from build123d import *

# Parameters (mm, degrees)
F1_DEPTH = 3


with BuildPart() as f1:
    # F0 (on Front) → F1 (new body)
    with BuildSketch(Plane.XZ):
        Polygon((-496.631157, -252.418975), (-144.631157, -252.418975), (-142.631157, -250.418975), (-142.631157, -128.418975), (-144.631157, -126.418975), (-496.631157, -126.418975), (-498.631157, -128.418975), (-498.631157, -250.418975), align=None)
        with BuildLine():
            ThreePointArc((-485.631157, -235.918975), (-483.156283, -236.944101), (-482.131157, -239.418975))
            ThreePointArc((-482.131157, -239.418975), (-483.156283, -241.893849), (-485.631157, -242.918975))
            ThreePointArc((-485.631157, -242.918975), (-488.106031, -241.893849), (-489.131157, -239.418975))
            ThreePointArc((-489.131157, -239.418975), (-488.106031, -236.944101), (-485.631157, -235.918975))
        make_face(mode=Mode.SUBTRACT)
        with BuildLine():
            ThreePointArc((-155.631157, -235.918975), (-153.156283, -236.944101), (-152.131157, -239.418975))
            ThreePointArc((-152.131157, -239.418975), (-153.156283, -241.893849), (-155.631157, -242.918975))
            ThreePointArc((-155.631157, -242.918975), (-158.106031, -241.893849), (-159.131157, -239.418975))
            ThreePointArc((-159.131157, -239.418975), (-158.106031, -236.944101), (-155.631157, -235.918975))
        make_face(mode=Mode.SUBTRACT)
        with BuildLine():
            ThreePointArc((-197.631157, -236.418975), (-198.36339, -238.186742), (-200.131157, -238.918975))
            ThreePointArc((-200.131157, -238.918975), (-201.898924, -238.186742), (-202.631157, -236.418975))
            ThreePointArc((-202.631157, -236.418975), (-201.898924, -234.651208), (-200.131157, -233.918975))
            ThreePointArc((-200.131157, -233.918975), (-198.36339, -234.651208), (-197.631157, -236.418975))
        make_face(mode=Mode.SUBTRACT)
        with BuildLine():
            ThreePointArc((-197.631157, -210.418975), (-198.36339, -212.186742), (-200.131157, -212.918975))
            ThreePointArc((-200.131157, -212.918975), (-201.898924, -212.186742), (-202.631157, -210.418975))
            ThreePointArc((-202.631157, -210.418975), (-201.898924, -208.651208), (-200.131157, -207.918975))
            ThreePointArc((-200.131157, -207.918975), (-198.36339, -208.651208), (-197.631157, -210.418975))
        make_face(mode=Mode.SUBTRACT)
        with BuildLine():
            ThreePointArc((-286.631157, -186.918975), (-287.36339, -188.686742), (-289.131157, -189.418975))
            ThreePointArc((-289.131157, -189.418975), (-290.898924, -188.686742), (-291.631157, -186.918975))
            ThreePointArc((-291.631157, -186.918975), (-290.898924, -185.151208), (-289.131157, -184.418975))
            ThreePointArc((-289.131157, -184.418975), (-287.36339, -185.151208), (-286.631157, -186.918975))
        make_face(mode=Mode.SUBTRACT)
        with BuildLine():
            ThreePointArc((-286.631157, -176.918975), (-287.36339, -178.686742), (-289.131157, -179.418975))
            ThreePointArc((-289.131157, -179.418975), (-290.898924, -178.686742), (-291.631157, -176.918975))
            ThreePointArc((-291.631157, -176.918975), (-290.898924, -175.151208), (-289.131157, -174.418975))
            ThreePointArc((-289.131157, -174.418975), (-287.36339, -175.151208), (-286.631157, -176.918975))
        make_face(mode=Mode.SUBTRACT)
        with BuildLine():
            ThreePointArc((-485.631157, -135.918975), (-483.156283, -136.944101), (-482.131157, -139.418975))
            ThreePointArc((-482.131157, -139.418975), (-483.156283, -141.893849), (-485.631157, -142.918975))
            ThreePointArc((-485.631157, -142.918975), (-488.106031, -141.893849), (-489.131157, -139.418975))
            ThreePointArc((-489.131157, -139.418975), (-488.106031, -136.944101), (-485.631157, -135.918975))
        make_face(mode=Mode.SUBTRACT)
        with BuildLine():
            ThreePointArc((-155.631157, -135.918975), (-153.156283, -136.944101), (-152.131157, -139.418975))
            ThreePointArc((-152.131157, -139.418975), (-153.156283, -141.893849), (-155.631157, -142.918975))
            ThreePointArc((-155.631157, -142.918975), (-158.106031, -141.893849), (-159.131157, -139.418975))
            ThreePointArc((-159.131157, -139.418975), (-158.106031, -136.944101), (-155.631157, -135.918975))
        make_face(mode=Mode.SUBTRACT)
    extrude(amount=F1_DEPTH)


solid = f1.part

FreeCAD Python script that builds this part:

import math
import FreeCAD as App
import Part
import Sketcher
from FreeCAD import Vector


def add_polygon(sketch, points):
    """Adds a closed chain of lines whose ends are joined by coincident constraints."""
    first, n = sketch.GeometryCount, len(points)
    for a, b in zip(points, points[1:] + points[:1]):
        sketch.addGeometry(Part.LineSegment(App.Vector(*a, 0), App.Vector(*b, 0)), False)
    for i in range(n):
        sketch.addConstraint(Sketcher.Constraint("Coincident", first + i, 2, first + (i + 1) % n, 1))

doc = App.newDocument("Part")
body = doc.addObject("PartDesign::Body", "Body")

# Sketch on XZ plane
sketch1 = body.newObject("Sketcher::SketchObject", "Sketch")
sketch1.AttachmentSupport = (doc.getObject("XZ_Plane"), [""])
sketch1.MapMode = "FlatFace"
add_polygon(sketch1, [(-496.6, -252.4), (-144.6, -252.4), (-142.6, -250.4), (-142.6, -128.4), (-144.6, -126.4), (-496.6, -126.4), (-498.6, -128.4), (-498.6, -250.4)])  # lines 0-7
sketch1.addGeometry(Part.ArcOfCircle(Part.Circle(Vector(-485.6, -239.4, 0), Vector(0, 0, 1), 3.5), math.radians(90), math.radians(180)), False)  # 8
sketch1.addGeometry(Part.ArcOfCircle(Part.Circle(Vector(-485.6, -239.4, 0), Vector(0, 0, 1), 3.5), math.radians(0), math.radians(90)), False)  # 9
sketch1.addGeometry(Part.ArcOfCircle(Part.Circle(Vector(-485.6, -239.4, 0), Vector(0, 0, 1), 3.5), math.radians(-90), math.radians(0)), False)  # 10
sketch1.addGeometry(Part.ArcOfCircle(Part.Circle(Vector(-485.6, -239.4, 0), Vector(0, 0, 1), 3.5), math.radians(180), math.radians(270)), False)  # 11
sketch1.addGeometry(Part.ArcOfCircle(Part.Circle(Vector(-200.1, -236.4, 0), Vector(0, 0, 1), 2.5), math.radians(0), math.radians(90)), False)  # 12
sketch1.addGeometry(Part.ArcOfCircle(Part.Circle(Vector(-200.1, -236.4, 0), Vector(0, 0, 1), 2.5), math.radians(-90), math.radians(0)), False)  # 13
sketch1.addGeometry(Part.ArcOfCircle(Part.Circle(Vector(-200.1, -236.4, 0), Vector(0, 0, 1), 2.5), math.radians(180), math.radians(270)), False)  # 14
sketch1.addGeometry(Part.ArcOfCircle(Part.Circle(Vector(-200.1, -236.4, 0), Vector(0, 0, 1), 2.5), math.radians(90), math.radians(180)), False)  # 15
sketch1.addGeometry(Part.ArcOfCircle(Part.Circle(Vector(-155.6, -239.4, 0), Vector(0, 0, 1), 3.5), math.radians(90), math.radians(180)), False)  # 16
sketch1.addGeometry(Part.ArcOfCircle(Part.Circle(Vector(-155.6, -239.4, 0), Vector(0, 0, 1), 3.5), math.radians(0), math.radians(90)), False)  # 17
sketch1.addGeometry(Part.ArcOfCircle(Part.Circle(Vector(-155.6, -239.4, 0), Vector(0, 0, 1), 3.5), math.radians(-90), math.radians(0)), False)  # 18
sketch1.addGeometry(Part.ArcOfCircle(Part.Circle(Vector(-155.6, -239.4, 0), Vector(0, 0, 1), 3.5), math.radians(180), math.radians(270)), False)  # 19
sketch1.addGeometry(Part.ArcOfCircle(Part.Circle(Vector(-200.1, -210.4, 0), Vector(0, 0, 1), 2.5), math.radians(0), math.radians(90)), False)  # 20
sketch1.addGeometry(Part.ArcOfCircle(Part.Circle(Vector(-200.1, -210.4, 0), Vector(0, 0, 1), 2.5), math.radians(-90), math.radians(0)), False)  # 21
sketch1.addGeometry(Part.ArcOfCircle(Part.Circle(Vector(-200.1, -210.4, 0), Vector(0, 0, 1), 2.5), math.radians(180), math.radians(270)), False)  # 22
sketch1.addGeometry(Part.ArcOfCircle(Part.Circle(Vector(-200.1, -210.4, 0), Vector(0, 0, 1), 2.5), math.radians(90), math.radians(180)), False)  # 23
sketch1.addGeometry(Part.ArcOfCircle(Part.Circle(Vector(-485.6, -139.4, 0), Vector(0, 0, 1), 3.5), math.radians(90), math.radians(180)), False)  # 24
sketch1.addGeometry(Part.ArcOfCircle(Part.Circle(Vector(-485.6, -139.4, 0), Vector(0, 0, 1), 3.5), math.radians(0), math.radians(90)), False)  # 25
sketch1.addGeometry(Part.ArcOfCircle(Part.Circle(Vector(-485.6, -139.4, 0), Vector(0, 0, 1), 3.5), math.radians(-90), math.radians(0)), False)  # 26
sketch1.addGeometry(Part.ArcOfCircle(Part.Circle(Vector(-485.6, -139.4, 0), Vector(0, 0, 1), 3.5), math.radians(180), math.radians(270)), False)  # 27
sketch1.addGeometry(Part.ArcOfCircle(Part.Circle(Vector(-289.1, -186.9, 0), Vector(0, 0, 1), 2.5), math.radians(0), math.radians(90)), False)  # 28
sketch1.addGeometry(Part.ArcOfCircle(Part.Circle(Vector(-289.1, -186.9, 0), Vector(0, 0, 1), 2.5), math.radians(-90), math.radians(0)), False)  # 29
sketch1.addGeometry(Part.ArcOfCircle(Part.Circle(Vector(-289.1, -186.9, 0), Vector(0, 0, 1), 2.5), math.radians(180), math.radians(270)), False)  # 30
sketch1.addGeometry(Part.ArcOfCircle(Part.Circle(Vector(-289.1, -186.9, 0), Vector(0, 0, 1), 2.5), math.radians(90), math.radians(180)), False)  # 31
sketch1.addGeometry(Part.ArcOfCircle(Part.Circle(Vector(-289.1, -176.9, 0), Vector(0, 0, 1), 2.5), math.radians(0), math.radians(90)), False)  # 32
sketch1.addGeometry(Part.ArcOfCircle(Part.Circle(Vector(-289.1, -176.9, 0), Vector(0, 0, 1), 2.5), math.radians(-90), math.radians(0)), False)  # 33
sketch1.addGeometry(Part.ArcOfCircle(Part.Circle(Vector(-289.1, -176.9, 0), Vector(0, 0, 1), 2.5), math.radians(180), math.radians(270)), False)  # 34
sketch1.addGeometry(Part.ArcOfCircle(Part.Circle(Vector(-289.1, -176.9, 0), Vector(0, 0, 1), 2.5), math.radians(90), math.radians(180)), False)  # 35
sketch1.addGeometry(Part.ArcOfCircle(Part.Circle(Vector(-155.6, -139.4, 0), Vector(0, 0, 1), 3.5), math.radians(90), math.radians(180)), False)  # 36
sketch1.addGeometry(Part.ArcOfCircle(Part.Circle(Vector(-155.6, -139.4, 0), Vector(0, 0, 1), 3.5), math.radians(0), math.radians(90)), False)  # 37
sketch1.addGeometry(Part.ArcOfCircle(Part.Circle(Vector(-155.6, -139.4, 0), Vector(0, 0, 1), 3.5), math.radians(-90), math.radians(0)), False)  # 38
sketch1.addGeometry(Part.ArcOfCircle(Part.Circle(Vector(-155.6, -139.4, 0), Vector(0, 0, 1), 3.5), math.radians(180), math.radians(270)), False)  # 39
sketch1.addConstraint(Sketcher.Constraint("Tangent", 8, 1, 9, 2))
sketch1.addConstraint(Sketcher.Constraint("Tangent", 9, 1, 10, 2))
sketch1.addConstraint(Sketcher.Constraint("Tangent", 10, 1, 11, 2))
sketch1.addConstraint(Sketcher.Constraint("Tangent", 11, 1, 8, 2))
sketch1.addConstraint(Sketcher.Constraint("Tangent", 12, 1, 13, 2))
sketch1.addConstraint(Sketcher.Constraint("Tangent", 13, 1, 14, 2))
sketch1.addConstraint(Sketcher.Constraint("Tangent", 14, 1, 15, 2))
sketch1.addConstraint(Sketcher.Constraint("Tangent", 15, 1, 12, 2))
sketch1.addConstraint(Sketcher.Constraint("Tangent", 16, 1, 17, 2))
sketch1.addConstraint(Sketcher.Constraint("Tangent", 17, 1, 18, 2))
sketch1.addConstraint(Sketcher.Constraint("Tangent", 18, 1, 19, 2))
sketch1.addConstraint(Sketcher.Constraint("Tangent", 19, 1, 16, 2))
sketch1.addConstraint(Sketcher.Constraint("Tangent", 20, 1, 21, 2))
sketch1.addConstraint(Sketcher.Constraint("Tangent", 21, 1, 22, 2))
sketch1.addConstraint(Sketcher.Constraint("Tangent", 22, 1, 23, 2))
sketch1.addConstraint(Sketcher.Constraint("Tangent", 23, 1, 20, 2))
sketch1.addConstraint(Sketcher.Constraint("Tangent", 24, 1, 25, 2))
sketch1.addConstraint(Sketcher.Constraint("Tangent", 25, 1, 26, 2))
sketch1.addConstraint(Sketcher.Constraint("Tangent", 26, 1, 27, 2))
sketch1.addConstraint(Sketcher.Constraint("Tangent", 27, 1, 24, 2))
sketch1.addConstraint(Sketcher.Constraint("Tangent", 28, 1, 29, 2))
sketch1.addConstraint(Sketcher.Constraint("Tangent", 29, 1, 30, 2))
sketch1.addConstraint(Sketcher.Constraint("Tangent", 30, 1, 31, 2))
sketch1.addConstraint(Sketcher.Constraint("Tangent", 31, 1, 28, 2))
sketch1.addConstraint(Sketcher.Constraint("Tangent", 32, 1, 33, 2))
sketch1.addConstraint(Sketcher.Constraint("Tangent", 33, 1, 34, 2))
sketch1.addConstraint(Sketcher.Constraint("Tangent", 34, 1, 35, 2))
sketch1.addConstraint(Sketcher.Constraint("Tangent", 35, 1, 32, 2))
sketch1.addConstraint(Sketcher.Constraint("Tangent", 36, 1, 37, 2))
sketch1.addConstraint(Sketcher.Constraint("Tangent", 37, 1, 38, 2))
sketch1.addConstraint(Sketcher.Constraint("Tangent", 38, 1, 39, 2))
sketch1.addConstraint(Sketcher.Constraint("Tangent", 39, 1, 36, 2))
sketch1.addConstraint(Sketcher.Constraint("Horizontal", 0))
sketch1.addConstraint(Sketcher.Constraint("Vertical", 2))
sketch1.addConstraint(Sketcher.Constraint("Horizontal", 4))
sketch1.addConstraint(Sketcher.Constraint("Vertical", 6))
sketch1.addConstraint(Sketcher.Constraint("Equal", 8, 9))
sketch1.addConstraint(Sketcher.Constraint("Equal", 12, 13))
sketch1.addConstraint(Sketcher.Constraint("Equal", 11, 16))
sketch1.addConstraint(Sketcher.Constraint("Equal", 16, 17))
sketch1.addConstraint(Sketcher.Constraint("Equal", 15, 20))
sketch1.addConstraint(Sketcher.Constraint("Equal", 20, 21))
sketch1.addConstraint(Sketcher.Constraint("Equal", 19, 24))
sketch1.addConstraint(Sketcher.Constraint("Equal", 24, 25))
sketch1.addConstraint(Sketcher.Constraint("Equal", 23, 28))
sketch1.addConstraint(Sketcher.Constraint("Equal", 28, 29))
sketch1.addConstraint(Sketcher.Constraint("Equal", 31, 32))
sketch1.addConstraint(Sketcher.Constraint("Equal", 32, 33))
sketch1.addConstraint(Sketcher.Constraint("Equal", 27, 36))
sketch1.addConstraint(Sketcher.Constraint("Equal", 36, 37))
sketch1.addConstraint(Sketcher.Constraint("Perpendicular", 1, 3))
sketch1.addConstraint(Sketcher.Constraint("Perpendicular", 3, 5))
sketch1.addConstraint(Sketcher.Constraint("Perpendicular", 5, 7))
sketch1.addConstraint(Sketcher.Constraint("Horizontal", 11, 3, 16, 3))
sketch1.addConstraint(Sketcher.Constraint("Horizontal", 27, 3, 36, 3))
sketch1.addConstraint(Sketcher.Constraint("Horizontal", 2, 2, 5, 2))
sketch1.addConstraint(Sketcher.Constraint("Horizontal", 1, 2, 6, 2))
sketch1.addConstraint(Sketcher.Constraint("Horizontal", 19, 3, 9, 1))
sketch1.addConstraint(Sketcher.Constraint("Horizontal", 9, 1, 11, 1))
sketch1.addConstraint(Sketcher.Constraint("Horizontal", 15, 3, 12, 1))
sketch1.addConstraint(Sketcher.Constraint("Horizontal", 12, 1, 14, 1))
sketch1.addConstraint(Sketcher.Constraint("Horizontal", 11, 1, 17, 1))
sketch1.addConstraint(Sketcher.Constraint("Horizontal", 17, 1, 19, 1))
sketch1.addConstraint(Sketcher.Constraint("Horizontal", 23, 3, 20, 1))
sketch1.addConstraint(Sketcher.Constraint("Horizontal", 20, 1, 22, 1))
sketch1.addConstraint(Sketcher.Constraint("Horizontal", 39, 3, 25, 1))
sketch1.addConstraint(Sketcher.Constraint("Horizontal", 25, 1, 27, 1))
sketch1.addConstraint(Sketcher.Constraint("Horizontal", 31, 3, 28, 1))
sketch1.addConstraint(Sketcher.Constraint("Horizontal", 28, 1, 30, 1))
sketch1.addConstraint(Sketcher.Constraint("Horizontal", 35, 3, 32, 1))
sketch1.addConstraint(Sketcher.Constraint("Horizontal", 32, 1, 34, 1))
sketch1.addConstraint(Sketcher.Constraint("Horizontal", 27, 1, 37, 1))
sketch1.addConstraint(Sketcher.Constraint("Horizontal", 37, 1, 39, 1))
sketch1.addConstraint(Sketcher.Constraint("Vertical", 15, 3, 20, 3))
sketch1.addConstraint(Sketcher.Constraint("Vertical", 11, 3, 24, 3))
sketch1.addConstraint(Sketcher.Constraint("Vertical", 31, 3, 32, 3))
sketch1.addConstraint(Sketcher.Constraint("Vertical", 19, 3, 36, 3))
sketch1.addConstraint(Sketcher.Constraint("Vertical", 0, 2, 3, 2))
sketch1.addConstraint(Sketcher.Constraint("Vertical", 4, 2, 7, 2))
sketch1.addConstraint(Sketcher.Constraint("Vertical", 27, 3, 8, 1))
sketch1.addConstraint(Sketcher.Constraint("Vertical", 8, 1, 10, 1))
sketch1.addConstraint(Sketcher.Constraint("Vertical", 23, 3, 13, 1))
sketch1.addConstraint(Sketcher.Constraint("Vertical", 13, 1, 15, 1))
sketch1.addConstraint(Sketcher.Constraint("Vertical", 39, 3, 16, 1))
sketch1.addConstraint(Sketcher.Constraint("Vertical", 16, 1, 18, 1))
sketch1.addConstraint(Sketcher.Constraint("Vertical", 15, 1, 21, 1))
sketch1.addConstraint(Sketcher.Constraint("Vertical", 21, 1, 23, 1))
sketch1.addConstraint(Sketcher.Constraint("Vertical", 10, 1, 24, 1))
sketch1.addConstraint(Sketcher.Constraint("Vertical", 24, 1, 26, 1))
sketch1.addConstraint(Sketcher.Constraint("Vertical", 35, 3, 29, 1))
sketch1.addConstraint(Sketcher.Constraint("Vertical", 29, 1, 31, 1))
sketch1.addConstraint(Sketcher.Constraint("Vertical", 31, 1, 33, 1))
sketch1.addConstraint(Sketcher.Constraint("Vertical", 33, 1, 35, 1))
sketch1.addConstraint(Sketcher.Constraint("Vertical", 18, 1, 36, 1))
sketch1.addConstraint(Sketcher.Constraint("Vertical", 36, 1, 38, 1))
sketch1.addConstraint(Sketcher.Constraint("Radius", 8, 3.499999))
sketch1.addConstraint(Sketcher.Constraint("Radius", 12, 2.5))
sketch1.addConstraint(Sketcher.Constraint("DistanceX", 0, 1, 0, 2, 352.0))
sketch1.addConstraint(Sketcher.Constraint("DistanceY", 2, 1, 2, 2, 122.0))
sketch1.addConstraint(Sketcher.Constraint("Distance", 1, 2.828427))
sketch1.addConstraint(Sketcher.Constraint("DistanceX", 8, 3, -1, 1, 485.631158))
sketch1.addConstraint(Sketcher.Constraint("DistanceY", 8, 3, -1, 1, 239.418974))
sketch1.addConstraint(Sketcher.Constraint("DistanceX", 12, 3, -1, 1, 200.131157))
sketch1.addConstraint(Sketcher.Constraint("DistanceY", 12, 3, -1, 1, 236.418975))
sketch1.addConstraint(Sketcher.Constraint("DistanceX", 16, 3, -1, 1, 155.631158))
sketch1.addConstraint(Sketcher.Constraint("DistanceY", 20, 3, -1, 1, 210.418975))
sketch1.addConstraint(Sketcher.Constraint("DistanceY", 24, 3, -1, 1, 139.418974))
sketch1.addConstraint(Sketcher.Constraint("DistanceX", 28, 3, -1, 1, 289.131157))
sketch1.addConstraint(Sketcher.Constraint("DistanceY", 28, 3, -1, 1, 186.918975))
sketch1.addConstraint(Sketcher.Constraint("DistanceY", 32, 3, -1, 1, 176.918975))
sketch1.addConstraint(Sketcher.Constraint("DistanceX", 0, 2, -1, 1, 144.631157))
sketch1.addConstraint(Sketcher.Constraint("DistanceY", 0, 2, -1, 1, 252.418975))
pad1 = body.newObject("PartDesign::Pad", "Pad")
pad1.Profile = sketch1
pad1.Length = 3

doc.recompute()
